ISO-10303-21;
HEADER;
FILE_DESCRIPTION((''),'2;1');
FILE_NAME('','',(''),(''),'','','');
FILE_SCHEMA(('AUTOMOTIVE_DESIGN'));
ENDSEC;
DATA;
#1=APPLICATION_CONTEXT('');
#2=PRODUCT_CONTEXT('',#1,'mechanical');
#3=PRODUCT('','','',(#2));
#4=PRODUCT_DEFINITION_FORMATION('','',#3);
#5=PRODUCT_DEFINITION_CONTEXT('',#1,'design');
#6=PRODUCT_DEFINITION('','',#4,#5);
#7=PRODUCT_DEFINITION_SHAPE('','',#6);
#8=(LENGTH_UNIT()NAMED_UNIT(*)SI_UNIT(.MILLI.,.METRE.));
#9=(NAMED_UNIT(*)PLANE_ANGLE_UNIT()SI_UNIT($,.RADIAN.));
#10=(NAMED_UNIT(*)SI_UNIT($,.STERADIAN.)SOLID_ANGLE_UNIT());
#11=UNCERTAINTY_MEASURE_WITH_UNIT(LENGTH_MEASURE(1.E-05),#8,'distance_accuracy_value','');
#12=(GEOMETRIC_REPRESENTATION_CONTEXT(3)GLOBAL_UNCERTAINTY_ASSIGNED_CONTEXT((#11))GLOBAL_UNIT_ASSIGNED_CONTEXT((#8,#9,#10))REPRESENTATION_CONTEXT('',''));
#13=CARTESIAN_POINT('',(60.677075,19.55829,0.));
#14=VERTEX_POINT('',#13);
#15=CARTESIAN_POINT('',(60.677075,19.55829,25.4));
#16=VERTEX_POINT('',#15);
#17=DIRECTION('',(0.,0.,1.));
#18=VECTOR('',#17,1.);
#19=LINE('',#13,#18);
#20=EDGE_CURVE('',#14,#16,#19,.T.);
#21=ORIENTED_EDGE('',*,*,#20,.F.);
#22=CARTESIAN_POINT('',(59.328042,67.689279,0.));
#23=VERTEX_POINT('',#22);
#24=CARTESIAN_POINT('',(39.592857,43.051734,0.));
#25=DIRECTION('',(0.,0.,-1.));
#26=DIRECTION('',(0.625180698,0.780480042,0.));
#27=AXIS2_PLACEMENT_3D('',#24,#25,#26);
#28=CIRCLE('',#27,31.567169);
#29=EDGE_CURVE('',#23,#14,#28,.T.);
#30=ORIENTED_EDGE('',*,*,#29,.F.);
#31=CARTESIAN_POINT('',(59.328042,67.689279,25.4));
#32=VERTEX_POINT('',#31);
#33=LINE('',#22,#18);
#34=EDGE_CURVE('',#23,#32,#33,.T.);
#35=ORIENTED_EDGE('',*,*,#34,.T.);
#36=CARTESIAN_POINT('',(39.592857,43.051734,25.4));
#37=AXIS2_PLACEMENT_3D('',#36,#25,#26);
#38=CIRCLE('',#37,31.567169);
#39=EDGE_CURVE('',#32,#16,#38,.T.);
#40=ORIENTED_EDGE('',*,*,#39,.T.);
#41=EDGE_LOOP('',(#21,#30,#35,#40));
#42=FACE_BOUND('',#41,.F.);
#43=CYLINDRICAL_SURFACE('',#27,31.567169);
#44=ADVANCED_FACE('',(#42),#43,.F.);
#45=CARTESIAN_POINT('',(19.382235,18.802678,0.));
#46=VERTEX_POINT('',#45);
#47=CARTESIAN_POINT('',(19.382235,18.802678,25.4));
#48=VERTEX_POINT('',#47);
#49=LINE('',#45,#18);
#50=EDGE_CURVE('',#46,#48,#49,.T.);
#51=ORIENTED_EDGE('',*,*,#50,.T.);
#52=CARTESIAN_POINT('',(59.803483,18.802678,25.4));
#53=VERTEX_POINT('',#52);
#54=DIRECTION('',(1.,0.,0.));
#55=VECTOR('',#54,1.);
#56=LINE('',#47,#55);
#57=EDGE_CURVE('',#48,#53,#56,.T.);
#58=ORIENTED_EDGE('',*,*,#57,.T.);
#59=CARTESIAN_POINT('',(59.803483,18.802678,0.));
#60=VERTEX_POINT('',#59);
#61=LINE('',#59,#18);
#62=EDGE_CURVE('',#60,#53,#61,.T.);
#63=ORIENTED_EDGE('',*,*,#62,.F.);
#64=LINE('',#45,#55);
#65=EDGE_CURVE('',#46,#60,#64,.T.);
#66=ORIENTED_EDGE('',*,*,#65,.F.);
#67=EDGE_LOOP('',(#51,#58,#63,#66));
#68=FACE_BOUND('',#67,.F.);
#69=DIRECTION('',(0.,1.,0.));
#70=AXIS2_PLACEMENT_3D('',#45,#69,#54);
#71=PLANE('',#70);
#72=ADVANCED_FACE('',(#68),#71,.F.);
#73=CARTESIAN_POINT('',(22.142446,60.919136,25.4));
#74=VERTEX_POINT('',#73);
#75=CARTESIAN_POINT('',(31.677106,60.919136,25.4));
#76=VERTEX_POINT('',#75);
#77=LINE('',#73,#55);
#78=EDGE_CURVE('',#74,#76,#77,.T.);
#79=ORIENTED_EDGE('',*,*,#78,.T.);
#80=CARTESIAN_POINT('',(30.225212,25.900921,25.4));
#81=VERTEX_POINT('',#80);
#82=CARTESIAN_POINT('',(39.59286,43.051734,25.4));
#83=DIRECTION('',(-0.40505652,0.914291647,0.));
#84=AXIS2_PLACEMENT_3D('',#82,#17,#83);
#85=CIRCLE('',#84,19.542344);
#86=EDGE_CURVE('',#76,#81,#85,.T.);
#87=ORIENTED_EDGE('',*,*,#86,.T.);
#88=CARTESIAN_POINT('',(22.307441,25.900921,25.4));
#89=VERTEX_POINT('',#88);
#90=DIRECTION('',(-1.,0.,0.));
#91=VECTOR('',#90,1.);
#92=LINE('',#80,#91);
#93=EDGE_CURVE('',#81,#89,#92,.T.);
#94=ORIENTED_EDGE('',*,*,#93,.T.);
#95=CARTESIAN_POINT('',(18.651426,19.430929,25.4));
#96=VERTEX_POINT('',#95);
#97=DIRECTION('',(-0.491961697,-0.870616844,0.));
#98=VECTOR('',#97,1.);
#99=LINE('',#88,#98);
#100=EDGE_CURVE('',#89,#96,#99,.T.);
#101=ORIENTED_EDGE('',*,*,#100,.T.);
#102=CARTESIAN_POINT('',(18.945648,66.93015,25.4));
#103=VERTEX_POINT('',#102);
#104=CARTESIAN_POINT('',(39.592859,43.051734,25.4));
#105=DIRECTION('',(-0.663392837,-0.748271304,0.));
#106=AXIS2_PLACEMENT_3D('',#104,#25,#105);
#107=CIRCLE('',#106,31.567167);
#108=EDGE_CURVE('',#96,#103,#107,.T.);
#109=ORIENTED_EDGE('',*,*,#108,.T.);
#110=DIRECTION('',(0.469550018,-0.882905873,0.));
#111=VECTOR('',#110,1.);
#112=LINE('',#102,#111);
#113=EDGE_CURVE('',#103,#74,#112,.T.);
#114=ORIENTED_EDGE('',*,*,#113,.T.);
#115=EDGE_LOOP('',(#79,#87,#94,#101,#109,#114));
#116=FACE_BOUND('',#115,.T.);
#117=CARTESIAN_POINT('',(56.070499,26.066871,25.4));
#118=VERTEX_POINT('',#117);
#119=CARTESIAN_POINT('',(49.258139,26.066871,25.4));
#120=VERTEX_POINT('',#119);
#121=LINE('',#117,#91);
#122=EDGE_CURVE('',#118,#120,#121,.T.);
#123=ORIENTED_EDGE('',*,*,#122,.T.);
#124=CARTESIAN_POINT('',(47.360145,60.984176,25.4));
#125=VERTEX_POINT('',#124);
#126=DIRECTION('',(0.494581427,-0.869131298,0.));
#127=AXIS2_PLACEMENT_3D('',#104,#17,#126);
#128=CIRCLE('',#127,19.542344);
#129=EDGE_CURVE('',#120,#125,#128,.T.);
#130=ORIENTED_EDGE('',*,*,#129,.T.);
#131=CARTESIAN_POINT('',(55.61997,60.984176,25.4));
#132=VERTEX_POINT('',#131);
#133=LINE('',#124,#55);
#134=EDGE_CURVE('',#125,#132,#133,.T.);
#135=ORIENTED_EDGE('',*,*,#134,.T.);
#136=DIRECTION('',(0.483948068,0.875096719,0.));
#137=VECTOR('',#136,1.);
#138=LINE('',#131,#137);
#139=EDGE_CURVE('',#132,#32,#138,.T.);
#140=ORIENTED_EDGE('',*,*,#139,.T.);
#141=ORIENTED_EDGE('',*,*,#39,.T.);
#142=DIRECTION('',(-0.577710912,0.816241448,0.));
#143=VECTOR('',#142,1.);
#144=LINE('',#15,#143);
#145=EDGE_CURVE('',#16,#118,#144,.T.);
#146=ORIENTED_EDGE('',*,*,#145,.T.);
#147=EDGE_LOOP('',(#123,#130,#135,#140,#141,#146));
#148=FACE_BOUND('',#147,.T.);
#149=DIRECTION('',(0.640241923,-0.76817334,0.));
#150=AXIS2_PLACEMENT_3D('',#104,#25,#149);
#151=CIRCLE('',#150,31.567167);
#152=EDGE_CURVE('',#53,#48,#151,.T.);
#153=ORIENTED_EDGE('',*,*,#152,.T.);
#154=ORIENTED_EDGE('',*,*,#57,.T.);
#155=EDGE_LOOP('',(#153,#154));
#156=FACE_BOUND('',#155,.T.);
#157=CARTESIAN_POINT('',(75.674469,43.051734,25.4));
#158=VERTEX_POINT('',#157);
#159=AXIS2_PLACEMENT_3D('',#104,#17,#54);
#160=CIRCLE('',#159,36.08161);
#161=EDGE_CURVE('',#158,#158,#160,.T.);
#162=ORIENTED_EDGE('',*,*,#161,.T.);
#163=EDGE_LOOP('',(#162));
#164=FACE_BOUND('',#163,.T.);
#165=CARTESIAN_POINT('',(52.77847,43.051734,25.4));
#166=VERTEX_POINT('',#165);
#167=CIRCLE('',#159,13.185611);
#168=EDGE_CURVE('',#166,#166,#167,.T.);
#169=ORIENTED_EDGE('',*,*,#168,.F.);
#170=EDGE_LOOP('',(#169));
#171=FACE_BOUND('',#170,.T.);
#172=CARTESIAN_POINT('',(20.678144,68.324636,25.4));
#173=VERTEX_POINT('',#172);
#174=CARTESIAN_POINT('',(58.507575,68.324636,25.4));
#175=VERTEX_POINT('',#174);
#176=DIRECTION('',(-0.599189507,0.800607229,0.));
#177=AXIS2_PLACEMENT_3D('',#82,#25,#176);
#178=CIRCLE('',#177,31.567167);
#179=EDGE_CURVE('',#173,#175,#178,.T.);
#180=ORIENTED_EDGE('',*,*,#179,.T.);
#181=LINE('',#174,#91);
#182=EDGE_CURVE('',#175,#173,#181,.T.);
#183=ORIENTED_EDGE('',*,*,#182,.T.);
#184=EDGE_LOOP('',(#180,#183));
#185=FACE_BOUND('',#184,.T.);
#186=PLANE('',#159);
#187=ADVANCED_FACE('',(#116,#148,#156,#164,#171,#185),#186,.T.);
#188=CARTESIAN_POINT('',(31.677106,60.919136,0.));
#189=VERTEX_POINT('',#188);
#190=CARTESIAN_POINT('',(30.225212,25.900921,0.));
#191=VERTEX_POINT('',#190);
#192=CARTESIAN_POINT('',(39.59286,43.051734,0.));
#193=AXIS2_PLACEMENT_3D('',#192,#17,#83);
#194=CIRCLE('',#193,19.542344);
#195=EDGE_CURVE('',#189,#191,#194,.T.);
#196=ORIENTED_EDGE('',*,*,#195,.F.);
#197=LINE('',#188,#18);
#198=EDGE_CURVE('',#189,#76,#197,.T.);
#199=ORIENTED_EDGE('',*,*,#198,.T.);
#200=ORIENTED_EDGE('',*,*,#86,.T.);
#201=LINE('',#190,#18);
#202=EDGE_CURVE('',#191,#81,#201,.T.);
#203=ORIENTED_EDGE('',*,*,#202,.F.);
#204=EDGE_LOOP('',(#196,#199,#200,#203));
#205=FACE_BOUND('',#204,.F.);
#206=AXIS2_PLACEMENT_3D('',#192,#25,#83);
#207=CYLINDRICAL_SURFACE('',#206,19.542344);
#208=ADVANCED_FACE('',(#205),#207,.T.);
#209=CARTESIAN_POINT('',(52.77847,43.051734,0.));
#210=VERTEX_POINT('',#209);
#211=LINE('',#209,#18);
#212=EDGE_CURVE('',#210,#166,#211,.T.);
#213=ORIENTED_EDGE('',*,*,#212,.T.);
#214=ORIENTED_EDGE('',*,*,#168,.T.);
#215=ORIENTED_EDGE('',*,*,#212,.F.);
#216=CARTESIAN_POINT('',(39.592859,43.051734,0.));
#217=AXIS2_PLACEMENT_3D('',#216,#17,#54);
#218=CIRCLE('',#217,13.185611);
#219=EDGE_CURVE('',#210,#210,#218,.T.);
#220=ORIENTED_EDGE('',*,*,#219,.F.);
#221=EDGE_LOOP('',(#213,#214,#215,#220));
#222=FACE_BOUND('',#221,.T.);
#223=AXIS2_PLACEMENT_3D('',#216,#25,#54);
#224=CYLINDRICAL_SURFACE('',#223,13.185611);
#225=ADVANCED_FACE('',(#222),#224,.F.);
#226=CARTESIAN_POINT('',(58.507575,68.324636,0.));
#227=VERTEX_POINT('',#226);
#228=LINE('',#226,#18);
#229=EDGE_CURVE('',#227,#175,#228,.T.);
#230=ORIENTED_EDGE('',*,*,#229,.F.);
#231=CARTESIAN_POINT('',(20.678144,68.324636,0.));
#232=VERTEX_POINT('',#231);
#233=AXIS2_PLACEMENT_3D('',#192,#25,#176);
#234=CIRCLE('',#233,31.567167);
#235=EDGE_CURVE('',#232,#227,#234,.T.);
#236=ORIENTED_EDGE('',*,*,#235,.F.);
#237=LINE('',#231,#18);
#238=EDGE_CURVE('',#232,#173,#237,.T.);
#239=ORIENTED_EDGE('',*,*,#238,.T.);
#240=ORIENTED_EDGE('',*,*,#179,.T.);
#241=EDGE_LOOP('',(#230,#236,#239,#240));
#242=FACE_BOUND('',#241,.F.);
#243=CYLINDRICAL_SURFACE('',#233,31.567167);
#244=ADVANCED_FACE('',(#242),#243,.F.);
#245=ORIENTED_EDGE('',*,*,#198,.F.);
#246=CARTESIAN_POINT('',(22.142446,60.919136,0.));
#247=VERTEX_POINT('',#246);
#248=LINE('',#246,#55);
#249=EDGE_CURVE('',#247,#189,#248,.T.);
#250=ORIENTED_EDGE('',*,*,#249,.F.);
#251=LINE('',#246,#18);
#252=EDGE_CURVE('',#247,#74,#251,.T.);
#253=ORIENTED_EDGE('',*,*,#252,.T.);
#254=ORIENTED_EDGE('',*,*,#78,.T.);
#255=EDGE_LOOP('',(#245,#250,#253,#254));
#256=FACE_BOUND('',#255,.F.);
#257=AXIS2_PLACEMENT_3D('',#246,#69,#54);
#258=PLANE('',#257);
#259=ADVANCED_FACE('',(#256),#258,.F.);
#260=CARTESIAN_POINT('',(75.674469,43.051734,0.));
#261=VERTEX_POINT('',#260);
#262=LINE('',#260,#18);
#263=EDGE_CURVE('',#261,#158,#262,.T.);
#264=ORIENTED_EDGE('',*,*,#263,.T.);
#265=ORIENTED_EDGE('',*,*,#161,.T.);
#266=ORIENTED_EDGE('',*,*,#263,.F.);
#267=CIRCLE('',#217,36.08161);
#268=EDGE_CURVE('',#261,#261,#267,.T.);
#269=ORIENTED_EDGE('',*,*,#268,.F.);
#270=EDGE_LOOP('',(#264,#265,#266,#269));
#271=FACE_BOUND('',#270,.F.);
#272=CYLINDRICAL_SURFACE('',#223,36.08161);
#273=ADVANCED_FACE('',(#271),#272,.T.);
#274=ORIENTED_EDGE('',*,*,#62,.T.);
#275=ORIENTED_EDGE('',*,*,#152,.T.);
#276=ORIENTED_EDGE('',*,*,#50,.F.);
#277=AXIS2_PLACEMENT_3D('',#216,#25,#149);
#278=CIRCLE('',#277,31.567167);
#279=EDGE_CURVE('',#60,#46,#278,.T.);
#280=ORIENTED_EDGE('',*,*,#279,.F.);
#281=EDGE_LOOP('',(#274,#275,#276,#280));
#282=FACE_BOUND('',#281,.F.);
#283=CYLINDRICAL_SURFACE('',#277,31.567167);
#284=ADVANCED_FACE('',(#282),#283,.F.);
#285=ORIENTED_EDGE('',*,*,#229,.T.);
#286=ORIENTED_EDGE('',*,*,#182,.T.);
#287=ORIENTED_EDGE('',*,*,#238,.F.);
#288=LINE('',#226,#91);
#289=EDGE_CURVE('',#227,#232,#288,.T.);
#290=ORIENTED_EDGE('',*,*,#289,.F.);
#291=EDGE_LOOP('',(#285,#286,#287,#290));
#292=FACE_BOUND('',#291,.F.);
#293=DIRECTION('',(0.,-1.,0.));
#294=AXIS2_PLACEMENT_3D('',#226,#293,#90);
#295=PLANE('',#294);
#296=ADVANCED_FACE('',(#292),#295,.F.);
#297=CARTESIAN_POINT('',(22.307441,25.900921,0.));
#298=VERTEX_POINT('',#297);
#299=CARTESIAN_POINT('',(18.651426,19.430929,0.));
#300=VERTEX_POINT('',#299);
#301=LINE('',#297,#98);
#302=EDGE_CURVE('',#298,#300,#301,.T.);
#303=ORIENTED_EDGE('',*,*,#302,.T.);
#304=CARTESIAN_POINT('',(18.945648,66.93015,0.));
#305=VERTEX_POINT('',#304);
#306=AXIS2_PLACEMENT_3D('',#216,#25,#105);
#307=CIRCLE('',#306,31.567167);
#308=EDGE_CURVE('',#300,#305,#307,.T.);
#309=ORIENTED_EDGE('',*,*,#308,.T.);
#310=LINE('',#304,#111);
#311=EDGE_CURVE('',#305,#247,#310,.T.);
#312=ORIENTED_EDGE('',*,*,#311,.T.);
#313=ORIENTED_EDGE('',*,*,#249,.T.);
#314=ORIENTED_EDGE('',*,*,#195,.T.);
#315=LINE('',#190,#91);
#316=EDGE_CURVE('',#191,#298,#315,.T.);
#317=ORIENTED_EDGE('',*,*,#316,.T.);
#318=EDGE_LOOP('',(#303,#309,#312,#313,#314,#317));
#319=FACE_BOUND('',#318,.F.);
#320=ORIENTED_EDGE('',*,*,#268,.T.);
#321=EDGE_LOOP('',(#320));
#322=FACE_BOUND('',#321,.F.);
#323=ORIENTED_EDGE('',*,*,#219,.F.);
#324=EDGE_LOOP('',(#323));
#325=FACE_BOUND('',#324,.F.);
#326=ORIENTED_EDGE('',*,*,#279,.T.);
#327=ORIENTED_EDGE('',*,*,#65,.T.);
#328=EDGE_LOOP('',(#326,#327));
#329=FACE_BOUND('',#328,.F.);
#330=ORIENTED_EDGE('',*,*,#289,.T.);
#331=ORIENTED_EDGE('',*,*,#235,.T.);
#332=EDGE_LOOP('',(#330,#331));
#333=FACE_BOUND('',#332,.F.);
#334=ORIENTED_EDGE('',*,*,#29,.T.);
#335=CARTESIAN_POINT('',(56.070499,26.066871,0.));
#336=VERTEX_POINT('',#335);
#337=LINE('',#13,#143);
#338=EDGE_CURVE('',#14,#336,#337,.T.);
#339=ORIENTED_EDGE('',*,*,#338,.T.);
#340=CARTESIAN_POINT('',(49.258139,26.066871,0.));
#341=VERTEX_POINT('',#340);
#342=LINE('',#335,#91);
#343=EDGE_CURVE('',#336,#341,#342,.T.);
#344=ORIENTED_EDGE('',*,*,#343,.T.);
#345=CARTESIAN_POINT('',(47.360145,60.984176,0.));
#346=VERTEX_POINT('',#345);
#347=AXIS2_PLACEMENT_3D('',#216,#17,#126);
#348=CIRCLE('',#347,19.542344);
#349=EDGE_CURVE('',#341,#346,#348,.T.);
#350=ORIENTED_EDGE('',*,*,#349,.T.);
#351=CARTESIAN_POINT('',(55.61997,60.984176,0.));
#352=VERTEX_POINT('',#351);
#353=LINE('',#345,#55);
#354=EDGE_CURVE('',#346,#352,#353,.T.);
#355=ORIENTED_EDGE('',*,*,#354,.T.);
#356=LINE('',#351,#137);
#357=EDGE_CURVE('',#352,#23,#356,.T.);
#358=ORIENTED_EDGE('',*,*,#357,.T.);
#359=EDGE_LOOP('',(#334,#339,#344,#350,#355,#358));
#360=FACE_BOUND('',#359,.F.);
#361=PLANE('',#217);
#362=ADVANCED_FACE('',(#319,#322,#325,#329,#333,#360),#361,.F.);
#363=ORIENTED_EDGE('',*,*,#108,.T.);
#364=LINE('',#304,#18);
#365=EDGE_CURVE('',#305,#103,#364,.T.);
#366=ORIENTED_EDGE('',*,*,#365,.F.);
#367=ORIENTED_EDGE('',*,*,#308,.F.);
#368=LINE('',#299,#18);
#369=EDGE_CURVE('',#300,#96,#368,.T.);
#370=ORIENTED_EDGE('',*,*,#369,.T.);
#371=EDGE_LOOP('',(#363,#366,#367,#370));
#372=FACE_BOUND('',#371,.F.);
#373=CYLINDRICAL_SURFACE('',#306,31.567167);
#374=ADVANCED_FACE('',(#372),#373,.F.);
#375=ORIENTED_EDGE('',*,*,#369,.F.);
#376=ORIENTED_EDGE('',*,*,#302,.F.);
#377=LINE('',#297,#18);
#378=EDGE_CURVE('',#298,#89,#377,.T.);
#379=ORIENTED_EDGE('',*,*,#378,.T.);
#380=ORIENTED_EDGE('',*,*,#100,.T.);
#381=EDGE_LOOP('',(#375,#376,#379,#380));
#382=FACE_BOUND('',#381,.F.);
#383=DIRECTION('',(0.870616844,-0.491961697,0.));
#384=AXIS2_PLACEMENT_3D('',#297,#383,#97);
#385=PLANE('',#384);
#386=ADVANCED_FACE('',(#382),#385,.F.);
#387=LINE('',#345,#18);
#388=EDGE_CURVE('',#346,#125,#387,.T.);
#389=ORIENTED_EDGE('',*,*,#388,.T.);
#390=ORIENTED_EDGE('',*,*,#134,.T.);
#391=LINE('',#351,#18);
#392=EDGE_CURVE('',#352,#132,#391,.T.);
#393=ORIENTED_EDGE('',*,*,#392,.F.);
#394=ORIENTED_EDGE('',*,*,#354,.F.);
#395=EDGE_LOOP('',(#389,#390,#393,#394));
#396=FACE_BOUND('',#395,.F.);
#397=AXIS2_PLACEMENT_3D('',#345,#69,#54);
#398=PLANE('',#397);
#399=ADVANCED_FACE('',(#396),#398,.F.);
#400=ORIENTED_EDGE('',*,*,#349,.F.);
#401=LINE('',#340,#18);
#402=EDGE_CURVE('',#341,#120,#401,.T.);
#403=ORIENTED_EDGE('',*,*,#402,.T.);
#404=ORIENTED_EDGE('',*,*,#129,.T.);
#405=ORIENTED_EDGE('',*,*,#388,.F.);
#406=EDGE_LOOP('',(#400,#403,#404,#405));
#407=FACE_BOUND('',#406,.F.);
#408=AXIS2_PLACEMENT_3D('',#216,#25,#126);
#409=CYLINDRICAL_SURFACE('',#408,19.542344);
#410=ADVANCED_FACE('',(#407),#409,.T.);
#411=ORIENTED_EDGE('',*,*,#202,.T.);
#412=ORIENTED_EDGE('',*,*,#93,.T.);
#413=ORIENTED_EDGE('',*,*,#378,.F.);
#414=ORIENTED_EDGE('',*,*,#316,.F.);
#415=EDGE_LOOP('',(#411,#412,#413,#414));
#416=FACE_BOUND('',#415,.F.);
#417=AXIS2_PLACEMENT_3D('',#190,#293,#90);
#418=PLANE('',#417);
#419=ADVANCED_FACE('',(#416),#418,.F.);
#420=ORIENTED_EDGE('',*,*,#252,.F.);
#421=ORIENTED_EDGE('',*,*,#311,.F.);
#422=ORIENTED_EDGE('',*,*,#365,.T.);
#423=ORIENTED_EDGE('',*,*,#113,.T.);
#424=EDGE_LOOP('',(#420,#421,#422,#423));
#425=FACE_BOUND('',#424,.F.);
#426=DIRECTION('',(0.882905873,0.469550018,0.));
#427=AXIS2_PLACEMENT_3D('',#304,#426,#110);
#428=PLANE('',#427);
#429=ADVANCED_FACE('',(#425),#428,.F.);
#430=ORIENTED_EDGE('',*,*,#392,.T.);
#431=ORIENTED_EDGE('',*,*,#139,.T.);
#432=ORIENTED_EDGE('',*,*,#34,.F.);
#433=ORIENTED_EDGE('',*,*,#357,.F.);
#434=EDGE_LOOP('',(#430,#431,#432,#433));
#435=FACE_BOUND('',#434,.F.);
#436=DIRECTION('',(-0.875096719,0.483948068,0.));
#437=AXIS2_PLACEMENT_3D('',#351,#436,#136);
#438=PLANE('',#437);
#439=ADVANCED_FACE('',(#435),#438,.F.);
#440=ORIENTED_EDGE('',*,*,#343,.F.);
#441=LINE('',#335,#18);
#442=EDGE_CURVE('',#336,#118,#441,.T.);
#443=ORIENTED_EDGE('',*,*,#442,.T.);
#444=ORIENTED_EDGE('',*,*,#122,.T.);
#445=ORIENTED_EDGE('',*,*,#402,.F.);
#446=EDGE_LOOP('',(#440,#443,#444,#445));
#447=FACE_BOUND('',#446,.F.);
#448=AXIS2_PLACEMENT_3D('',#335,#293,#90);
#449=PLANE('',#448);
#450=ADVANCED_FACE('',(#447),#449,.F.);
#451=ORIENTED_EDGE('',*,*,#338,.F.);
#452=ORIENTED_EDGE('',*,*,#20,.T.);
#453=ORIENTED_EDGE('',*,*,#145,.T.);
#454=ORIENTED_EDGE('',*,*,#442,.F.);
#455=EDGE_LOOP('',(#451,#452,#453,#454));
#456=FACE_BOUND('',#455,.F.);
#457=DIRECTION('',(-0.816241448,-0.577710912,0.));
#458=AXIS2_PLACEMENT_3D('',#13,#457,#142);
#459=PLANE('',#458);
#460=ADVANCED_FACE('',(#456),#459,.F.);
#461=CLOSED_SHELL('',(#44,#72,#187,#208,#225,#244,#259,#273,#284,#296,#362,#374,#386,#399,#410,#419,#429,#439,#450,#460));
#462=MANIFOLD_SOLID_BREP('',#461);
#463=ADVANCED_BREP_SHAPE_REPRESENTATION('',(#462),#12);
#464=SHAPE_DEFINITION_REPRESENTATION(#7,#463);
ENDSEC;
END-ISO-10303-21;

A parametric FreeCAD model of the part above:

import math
import FreeCAD as App
import Part
import Sketcher
from FreeCAD import Vector
Q = App.Units.Quantity

doc = App.newDocument("Part")
body = doc.addObject("PartDesign::Body", "Body")

sketch1 = body.newObject("Sketcher::SketchObject", "Sketch")
sketch1.AttachmentSupport = (doc.getObject("XY_Plane"), [""])
sketch1.MapMode = "FlatFace"
sketch1.addGeometry([
    Part.Circle(Vector(40, 43, 0), Vector(0, 0, 1), 36),
    Part.ArcOfCircle(Part.Circle(Vector(40, 43, 0), Vector(0, 0, 1), 32), math.radians(-130), math.radians(-50)),
    Part.LineSegment(Vector(19, 19, 0), Vector(60, 19, 0)),
    Part.LineSegment(Vector(22, 26, 0), Vector(19, 19, 0)),
    Part.ArcOfCircle(Part.Circle(Vector(40, 43, 0), Vector(0, 0, 1), 32), math.radians(131), math.radians(228)),
    Part.LineSegment(Vector(19, 67, 0), Vector(22, 61, 0)),
    Part.LineSegment(Vector(22, 61, 0), Vector(32, 61, 0)),
    Part.ArcOfCircle(Part.Circle(Vector(40, 43, 0), Vector(0, 0, 1), 20), math.radians(114), math.radians(241)),
    Part.LineSegment(Vector(30, 26, 0), Vector(22, 26, 0)),
    Part.Circle(Vector(40, 43, 0), Vector(0, 0, 1), 13),
    Part.LineSegment(Vector(56, 61, 0), Vector(59, 68, 0)),
    Part.ArcOfCircle(Part.Circle(Vector(40, 43, 0), Vector(0, 0, 1), 32), math.radians(-48), math.radians(51)),
    Part.LineSegment(Vector(61, 20, 0), Vector(56, 26, 0)),
    Part.LineSegment(Vector(56, 26, 0), Vector(49, 26, 0)),
    Part.ArcOfCircle(Part.Circle(Vector(40, 43, 0), Vector(0, 0, 1), 20), math.radians(-60), math.radians(67)),
    Part.LineSegment(Vector(47, 61, 0), Vector(56, 61, 0)),
    Part.LineSegment(Vector(59, 68, 0), Vector(21, 68, 0)),
    Part.ArcOfCircle(Part.Circle(Vector(40, 43, 0), Vector(0, 0, 1), 32), math.radians(53), math.radians(127)),
], False)
sketch1.addConstraint([
    Sketcher.Constraint("Coincident", 1, 1, 2, 1),
    Sketcher.Constraint("Coincident", 2, 2, 1, 2),
    Sketcher.Constraint("Coincident", 3, 2, 4, 2),
    Sketcher.Constraint("Coincident", 4, 1, 5, 1),
    Sketcher.Constraint("Coincident", 5, 2, 6, 1),
    Sketcher.Constraint("Coincident", 6, 2, 7, 1),
    Sketcher.Constraint("Coincident", 7, 2, 8, 1),
    Sketcher.Constraint("Coincident", 8, 2, 3, 1),
    Sketcher.Constraint("Coincident", 10, 2, 11, 2),
    Sketcher.Constraint("Coincident", 11, 1, 12, 1),
    Sketcher.Constraint("Coincident", 12, 2, 13, 1),
    Sketcher.Constraint("Coincident", 13, 2, 14, 1),
    Sketcher.Constraint("Coincident", 14, 2, 15, 1),
    Sketcher.Constraint("Coincident", 15, 2, 10, 1),
    Sketcher.Constraint("Coincident", 16, 1, 17, 1),
    Sketcher.Constraint("Coincident", 17, 2, 16, 2),
    Sketcher.Constraint("Horizontal", 2),
    Sketcher.Constraint("Horizontal", 6),
    Sketcher.Constraint("Horizontal", 8),
    Sketcher.Constraint("Horizontal", 13),
    Sketcher.Constraint("Horizontal", 15),
    Sketcher.Constraint("Horizontal", 16),
    Sketcher.Constraint("Coincident", 1, 3, 0, 3),
    Sketcher.Constraint("Coincident", 4, 3, 0, 3),
    Sketcher.Constraint("Coincident", 7, 3, 0, 3),
    Sketcher.Constraint("Coincident", 9, 3, 0, 3),
    Sketcher.Constraint("Coincident", 11, 3, 0, 3),
    Sketcher.Constraint("Coincident", 14, 3, 0, 3),
    Sketcher.Constraint("Coincident", 17, 3, 0, 3),
    Sketcher.Constraint("Equal", 1, 4),
    Sketcher.Constraint("Equal", 4, 11),
    Sketcher.Constraint("Equal", 7, 14),
    Sketcher.Constraint("Equal", 11, 17),
    Sketcher.Constraint("Diameter", 0, Q("72.16322 mm")),
    Sketcher.Constraint("Diameter", 9, Q("26.371222 mm")),
    Sketcher.Constraint("Radius", 11, Q("31.567169 mm")),
    Sketcher.Constraint("DistanceX", -1, 1, 12, 2, Q("2.2075 in")),
    Sketcher.Constraint("DistanceX", -1, 1, 17, 2, Q("0.8141002 in")),
    Sketcher.Constraint("Radius", 7, Q("19.542344 mm")),
    Sketcher.Constraint("DistanceX", 6, 1, 6, 2, Q("9.53466 mm")),
    Sketcher.Constraint("DistanceX", 8, 2, 8, 1, Q("7.917771 mm")),
    Sketcher.Constraint("DistanceX", 13, 2, 13, 1, Q("6.81236 mm")),
    Sketcher.Constraint("DistanceX", 16, 2, 16, 1, Q("37.829431 mm")),
    Sketcher.Constraint("DistanceX", 4, 1, 5, 2, Q("3.196798 mm")),
    Sketcher.Constraint("DistanceY", 4, 3, 5, 2, Q("17.867402 mm")),
    Sketcher.Constraint("DistanceX", 17, 2, 14, 2, Q("26.682001 mm")),
    Sketcher.Constraint("DistanceX", 2, 1, 2, 2, Q("40.421248 mm")),
    Sketcher.Constraint("DistanceX", 15, 1, 15, 2, Q("8.259825 mm")),
    Sketcher.Constraint("DistanceY", -1, 1, 1, 1, Q("18.802678 mm")),
    Sketcher.Constraint("DistanceY", -1, 1, 3, 2, Q("19.430929 mm")),
    Sketcher.Constraint("DistanceX", -1, 1, 7, 2, Q("30.225212 mm")),
    Sketcher.Constraint("DistanceY", -1, 1, 10, 2, Q("67.689279 mm")),
    Sketcher.Constraint("DistanceY", -1, 1, 11, 1, Q("19.55829 mm")),
])
pad1 = body.newObject("PartDesign::Pad", "Pad")
pad1.Profile = sketch1
pad1.Length = Q("1 in")

doc.recompute()
